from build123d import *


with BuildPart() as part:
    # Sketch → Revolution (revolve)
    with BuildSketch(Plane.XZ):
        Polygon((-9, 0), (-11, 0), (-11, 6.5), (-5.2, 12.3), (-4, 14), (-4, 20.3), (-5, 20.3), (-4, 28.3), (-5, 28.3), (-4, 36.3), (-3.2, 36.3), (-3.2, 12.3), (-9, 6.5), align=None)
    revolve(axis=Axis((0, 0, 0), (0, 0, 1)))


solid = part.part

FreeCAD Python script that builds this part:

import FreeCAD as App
import Part
import Sketcher
from FreeCAD import Vector
Q = App.Units.Quantity


def add_polygon(sketch, points):
    """Adds a closed chain of lines whose ends are joined by coincident constraints."""
    first, n = sketch.GeometryCount, len(points)
    for a, b in zip(points, points[1:] + points[:1]):
        sketch.addGeometry(Part.LineSegment(App.Vector(*a, 0), App.Vector(*b, 0)), False)
    for i in range(n):
        sketch.addConstraint(Sketcher.Constraint("Coincident", first + i, 2, first + (i + 1) % n, 1))

doc = App.newDocument("Part")
params = doc.addObject("Spreadsheet::Sheet", "Params")
for row, (alias, value) in enumerate([
    ("sketch1_width", "2 mm"),
    ("sketch1_width2", "1 mm"),
    ("sketch1_height", "24 mm"),
    ("sketch1_width3", "0.8 mm"),
    ("sketch1_height2", "6.5 mm"),
    ("revolution_angle", "360 deg"),
], start=1):
    params.set(f"A{row}", alias)
    params.set(f"B{row}", "=" + value)
    params.setAlias(f"B{row}", alias)

body = doc.addObject("PartDesign::Body", "Body")

# Sketch on XZ plane
sketch1 = body.newObject("Sketcher::SketchObject", "Sketch")
sketch1.AttachmentSupport = (doc.getObject("XZ_Plane"), [""])
sketch1.MapMode = "FlatFace"
add_polygon(sketch1, [(-11, 0), (-9, 0), (-9, 6.5), (-3.2, 12.3), (-3.2, 36.3), (-4, 36.3), (-5, 28.3), (-4, 28.3), (-5, 20.3), (-4, 20.3), (-4, 14), (-5.2, 12.3), (-11, 6.5)])  # lines 0-12
sketch1.addConstraint(Sketcher.Constraint("Horizontal", 0))
sketch1.addConstraint(Sketcher.Constraint("Vertical", 1))
sketch1.addConstraint(Sketcher.Constraint("Vertical", 3))
sketch1.addConstraint(Sketcher.Constraint("Horizontal", 4))
sketch1.addConstraint(Sketcher.Constraint("Horizontal", 6))
sketch1.addConstraint(Sketcher.Constraint("Horizontal", 8))
sketch1.addConstraint(Sketcher.Constraint("Vertical", 9))
sketch1.addConstraint(Sketcher.Constraint("Vertical", 12))
sketch1.addConstraint(Sketcher.Constraint("PointOnObject", 0, 2, -1))
sketch1.addConstraint(Sketcher.Constraint("Parallel", 5, 7))
sketch1.addConstraint(Sketcher.Constraint("Parallel", 2, 11))
sketch1.addConstraint(Sketcher.Constraint("Horizontal", 2, 2, 10, 2))
sketch1.addConstraint(Sketcher.Constraint("Horizontal", 1, 2, 11, 2))
sketch1.addConstraint(Sketcher.Constraint("Vertical", 4, 2, 6, 2))
sketch1.addConstraint(Sketcher.Constraint("Vertical", 5, 2, 7, 2))
sketch1.addConstraint(Sketcher.Constraint("Vertical", 6, 2, 8, 2))
sketch1.addConstraint(Sketcher.Constraint("DistanceX", 0, 1, 0, 2, Q("2 mm")))
sketch1.addConstraint(Sketcher.Constraint("DistanceX", 6, 1, 6, 2, Q("1 mm")))
sketch1.addConstraint(Sketcher.Constraint("DistanceY", 3, 1, 3, 2, Q("24 mm")))
sketch1.addConstraint(Sketcher.Constraint("Angle", 2, Q("45 deg")))
sketch1.addConstraint(Sketcher.Constraint("DistanceX", 4, 2, 4, 1, Q("0.8 mm")))
sketch1.addConstraint(Sketcher.Constraint("DistanceY", 1, 1, 1, 2, Q("6.5 mm")))
sketch1.addConstraint(Sketcher.Constraint("DistanceY", 9, 2, 9, 1, Q("6.3 mm")))
sketch1.addConstraint(Sketcher.Constraint("DistanceX", 0, 2, -1, 1, Q("9 mm")))
sketch1.addConstraint(Sketcher.Constraint("DistanceX", 4, 2, -1, 1, Q("4 mm")))
sketch1.addConstraint(Sketcher.Constraint("DistanceY", -1, 1, 9, 2, Q("14 mm")))
sketch1.setExpression("Constraints[29]", "Params.sketch1_width")
sketch1.setExpression("Constraints[30]", "Params.sketch1_width2")
sketch1.setExpression("Constraints[31]", "Params.sketch1_height")
sketch1.setExpression("Constraints[33]", "Params.sketch1_width3")
sketch1.setExpression("Constraints[34]", "Params.sketch1_height2")
revolution = body.newObject("PartDesign::Revolution", "Revolution")
revolution.Profile = sketch1
revolution.ReferenceAxis = (sketch1, ["V_Axis"])
revolution.setExpression("Angle", "Params.revolution_angle")

doc.recompute()
